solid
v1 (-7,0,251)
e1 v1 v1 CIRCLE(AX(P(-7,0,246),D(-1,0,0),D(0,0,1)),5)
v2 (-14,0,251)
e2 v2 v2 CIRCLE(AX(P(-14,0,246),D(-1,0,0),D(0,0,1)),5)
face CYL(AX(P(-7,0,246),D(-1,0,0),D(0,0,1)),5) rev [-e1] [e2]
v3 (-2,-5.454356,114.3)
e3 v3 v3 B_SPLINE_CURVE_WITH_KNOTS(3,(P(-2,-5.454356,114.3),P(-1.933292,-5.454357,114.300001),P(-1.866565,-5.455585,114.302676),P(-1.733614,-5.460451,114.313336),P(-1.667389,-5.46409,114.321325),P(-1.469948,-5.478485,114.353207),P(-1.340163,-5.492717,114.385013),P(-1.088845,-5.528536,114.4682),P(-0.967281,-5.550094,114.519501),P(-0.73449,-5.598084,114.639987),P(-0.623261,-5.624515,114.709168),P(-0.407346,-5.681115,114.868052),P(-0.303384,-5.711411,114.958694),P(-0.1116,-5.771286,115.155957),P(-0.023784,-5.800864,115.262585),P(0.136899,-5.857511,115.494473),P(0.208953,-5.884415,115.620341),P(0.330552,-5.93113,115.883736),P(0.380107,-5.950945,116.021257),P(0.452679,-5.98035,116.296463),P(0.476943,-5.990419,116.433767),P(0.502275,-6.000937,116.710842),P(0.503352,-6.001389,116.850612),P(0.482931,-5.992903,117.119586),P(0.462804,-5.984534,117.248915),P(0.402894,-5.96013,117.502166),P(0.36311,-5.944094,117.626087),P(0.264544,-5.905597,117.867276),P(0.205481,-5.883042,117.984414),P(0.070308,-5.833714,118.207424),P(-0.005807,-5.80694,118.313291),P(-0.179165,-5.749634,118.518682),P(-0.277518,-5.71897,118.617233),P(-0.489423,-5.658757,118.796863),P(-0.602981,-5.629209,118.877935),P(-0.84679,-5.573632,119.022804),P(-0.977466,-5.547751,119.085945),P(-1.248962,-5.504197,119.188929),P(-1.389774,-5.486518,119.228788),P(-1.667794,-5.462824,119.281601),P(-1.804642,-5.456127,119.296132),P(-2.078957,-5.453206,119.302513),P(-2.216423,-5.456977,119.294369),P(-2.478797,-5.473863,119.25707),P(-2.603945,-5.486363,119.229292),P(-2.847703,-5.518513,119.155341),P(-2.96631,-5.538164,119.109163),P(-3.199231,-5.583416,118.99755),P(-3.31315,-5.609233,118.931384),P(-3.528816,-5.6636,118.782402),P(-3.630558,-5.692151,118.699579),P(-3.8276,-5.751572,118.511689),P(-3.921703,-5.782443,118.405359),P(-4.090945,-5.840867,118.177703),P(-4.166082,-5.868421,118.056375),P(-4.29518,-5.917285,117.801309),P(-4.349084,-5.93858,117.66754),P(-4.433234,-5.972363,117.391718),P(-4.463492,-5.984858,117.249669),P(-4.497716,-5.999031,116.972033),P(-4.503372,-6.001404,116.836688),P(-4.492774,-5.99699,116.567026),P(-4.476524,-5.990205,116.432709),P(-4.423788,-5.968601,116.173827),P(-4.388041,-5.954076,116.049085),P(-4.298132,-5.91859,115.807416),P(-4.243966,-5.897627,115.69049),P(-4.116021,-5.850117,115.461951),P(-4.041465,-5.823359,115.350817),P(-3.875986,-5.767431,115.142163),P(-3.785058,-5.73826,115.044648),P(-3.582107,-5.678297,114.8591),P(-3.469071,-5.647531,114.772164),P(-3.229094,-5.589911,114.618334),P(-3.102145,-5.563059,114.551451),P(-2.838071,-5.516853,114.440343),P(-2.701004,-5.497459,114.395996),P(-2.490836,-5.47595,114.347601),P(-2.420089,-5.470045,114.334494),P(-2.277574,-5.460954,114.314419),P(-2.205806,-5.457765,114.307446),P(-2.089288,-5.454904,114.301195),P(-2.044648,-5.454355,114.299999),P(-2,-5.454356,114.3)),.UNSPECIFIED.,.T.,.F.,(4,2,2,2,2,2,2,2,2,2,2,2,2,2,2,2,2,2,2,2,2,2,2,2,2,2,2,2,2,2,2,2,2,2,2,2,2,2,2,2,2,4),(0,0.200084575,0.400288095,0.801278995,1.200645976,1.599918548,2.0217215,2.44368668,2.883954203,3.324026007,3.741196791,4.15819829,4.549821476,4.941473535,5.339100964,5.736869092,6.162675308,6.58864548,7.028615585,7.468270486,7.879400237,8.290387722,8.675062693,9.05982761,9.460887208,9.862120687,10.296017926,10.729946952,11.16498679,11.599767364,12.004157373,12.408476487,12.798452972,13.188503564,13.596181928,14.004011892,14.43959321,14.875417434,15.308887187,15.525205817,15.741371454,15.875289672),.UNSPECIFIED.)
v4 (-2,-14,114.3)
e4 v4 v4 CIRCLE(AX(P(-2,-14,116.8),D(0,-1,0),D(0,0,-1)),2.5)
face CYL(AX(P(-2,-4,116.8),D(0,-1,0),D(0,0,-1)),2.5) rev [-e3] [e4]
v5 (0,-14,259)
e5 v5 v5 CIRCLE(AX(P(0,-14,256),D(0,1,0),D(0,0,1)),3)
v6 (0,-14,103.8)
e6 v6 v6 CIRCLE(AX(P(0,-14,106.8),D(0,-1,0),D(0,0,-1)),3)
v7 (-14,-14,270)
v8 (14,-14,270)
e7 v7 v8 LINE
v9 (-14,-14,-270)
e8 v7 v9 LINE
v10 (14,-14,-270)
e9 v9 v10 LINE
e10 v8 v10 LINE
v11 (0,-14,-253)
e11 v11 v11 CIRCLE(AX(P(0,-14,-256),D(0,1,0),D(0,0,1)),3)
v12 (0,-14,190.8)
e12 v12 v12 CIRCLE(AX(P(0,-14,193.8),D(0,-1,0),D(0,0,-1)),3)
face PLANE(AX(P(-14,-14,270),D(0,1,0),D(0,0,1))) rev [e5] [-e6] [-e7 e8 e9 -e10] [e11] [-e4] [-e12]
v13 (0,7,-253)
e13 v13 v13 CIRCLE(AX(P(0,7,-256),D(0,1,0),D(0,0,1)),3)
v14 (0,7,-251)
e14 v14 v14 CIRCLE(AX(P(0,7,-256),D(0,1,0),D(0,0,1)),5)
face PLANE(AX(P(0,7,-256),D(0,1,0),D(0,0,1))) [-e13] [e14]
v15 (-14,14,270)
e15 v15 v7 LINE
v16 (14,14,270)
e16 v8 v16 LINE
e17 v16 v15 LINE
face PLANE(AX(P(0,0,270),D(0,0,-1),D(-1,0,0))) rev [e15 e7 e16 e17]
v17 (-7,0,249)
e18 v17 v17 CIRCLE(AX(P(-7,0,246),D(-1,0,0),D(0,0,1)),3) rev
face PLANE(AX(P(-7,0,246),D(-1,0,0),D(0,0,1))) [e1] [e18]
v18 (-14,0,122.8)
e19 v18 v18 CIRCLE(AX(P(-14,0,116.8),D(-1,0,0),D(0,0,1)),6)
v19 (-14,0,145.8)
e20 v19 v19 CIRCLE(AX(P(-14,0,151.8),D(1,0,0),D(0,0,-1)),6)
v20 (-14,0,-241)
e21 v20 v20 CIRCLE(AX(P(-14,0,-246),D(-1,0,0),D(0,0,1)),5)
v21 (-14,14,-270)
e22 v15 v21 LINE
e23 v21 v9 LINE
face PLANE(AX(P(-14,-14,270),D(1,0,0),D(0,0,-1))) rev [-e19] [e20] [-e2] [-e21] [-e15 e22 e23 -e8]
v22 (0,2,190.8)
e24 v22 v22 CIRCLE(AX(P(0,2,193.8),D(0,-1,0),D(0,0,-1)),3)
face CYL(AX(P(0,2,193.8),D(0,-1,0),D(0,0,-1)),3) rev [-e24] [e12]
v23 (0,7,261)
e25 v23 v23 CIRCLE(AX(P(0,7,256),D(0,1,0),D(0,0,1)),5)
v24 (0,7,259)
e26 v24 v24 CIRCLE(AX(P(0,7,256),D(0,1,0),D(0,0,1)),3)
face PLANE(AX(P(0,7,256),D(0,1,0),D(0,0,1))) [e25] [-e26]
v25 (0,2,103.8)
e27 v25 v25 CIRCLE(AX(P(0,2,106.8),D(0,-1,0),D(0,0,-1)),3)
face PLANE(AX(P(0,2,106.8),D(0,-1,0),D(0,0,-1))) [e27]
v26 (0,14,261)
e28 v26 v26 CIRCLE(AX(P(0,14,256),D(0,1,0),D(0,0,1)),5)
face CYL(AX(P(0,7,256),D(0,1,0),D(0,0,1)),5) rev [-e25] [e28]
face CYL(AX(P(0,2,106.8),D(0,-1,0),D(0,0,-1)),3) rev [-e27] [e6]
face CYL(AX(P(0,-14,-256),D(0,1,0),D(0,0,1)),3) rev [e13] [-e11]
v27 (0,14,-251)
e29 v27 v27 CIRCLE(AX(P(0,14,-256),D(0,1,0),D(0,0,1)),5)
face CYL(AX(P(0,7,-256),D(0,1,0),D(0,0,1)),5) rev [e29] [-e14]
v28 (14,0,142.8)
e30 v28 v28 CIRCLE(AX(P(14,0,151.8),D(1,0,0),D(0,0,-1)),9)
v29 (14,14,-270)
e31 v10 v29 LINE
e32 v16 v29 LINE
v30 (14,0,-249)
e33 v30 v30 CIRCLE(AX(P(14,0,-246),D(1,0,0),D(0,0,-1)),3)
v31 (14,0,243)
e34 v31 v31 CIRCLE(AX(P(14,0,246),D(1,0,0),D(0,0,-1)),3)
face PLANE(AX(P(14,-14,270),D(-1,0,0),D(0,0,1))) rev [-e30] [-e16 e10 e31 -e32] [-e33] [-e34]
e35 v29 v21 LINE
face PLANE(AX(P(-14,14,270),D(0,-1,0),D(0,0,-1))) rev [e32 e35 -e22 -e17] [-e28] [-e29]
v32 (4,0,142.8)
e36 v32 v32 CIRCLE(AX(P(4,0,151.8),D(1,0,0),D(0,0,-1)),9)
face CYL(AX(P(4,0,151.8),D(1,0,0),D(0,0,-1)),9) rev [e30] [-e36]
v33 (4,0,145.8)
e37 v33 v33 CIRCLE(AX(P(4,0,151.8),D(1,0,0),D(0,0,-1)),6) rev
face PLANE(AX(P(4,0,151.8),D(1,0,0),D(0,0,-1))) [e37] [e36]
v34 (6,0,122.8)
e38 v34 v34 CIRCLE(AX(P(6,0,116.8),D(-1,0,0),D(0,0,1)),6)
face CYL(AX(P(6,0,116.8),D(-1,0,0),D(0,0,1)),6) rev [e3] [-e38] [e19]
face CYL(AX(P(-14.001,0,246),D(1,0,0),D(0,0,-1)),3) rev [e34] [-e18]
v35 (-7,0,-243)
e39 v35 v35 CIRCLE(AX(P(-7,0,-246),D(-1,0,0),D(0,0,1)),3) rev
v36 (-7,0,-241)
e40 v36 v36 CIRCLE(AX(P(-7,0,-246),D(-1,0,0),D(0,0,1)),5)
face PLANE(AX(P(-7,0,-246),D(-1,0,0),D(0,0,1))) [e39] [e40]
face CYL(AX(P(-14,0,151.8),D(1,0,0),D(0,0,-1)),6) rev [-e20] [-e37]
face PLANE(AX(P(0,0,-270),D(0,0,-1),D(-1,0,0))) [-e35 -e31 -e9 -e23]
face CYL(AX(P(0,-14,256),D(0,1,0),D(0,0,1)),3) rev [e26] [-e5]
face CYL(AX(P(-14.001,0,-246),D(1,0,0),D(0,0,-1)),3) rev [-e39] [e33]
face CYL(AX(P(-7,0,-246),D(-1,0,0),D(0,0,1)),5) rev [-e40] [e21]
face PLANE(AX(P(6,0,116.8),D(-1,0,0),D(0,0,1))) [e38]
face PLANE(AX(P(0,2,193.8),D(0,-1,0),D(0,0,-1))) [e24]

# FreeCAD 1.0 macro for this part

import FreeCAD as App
import Part
import Sketcher
from FreeCAD import Vector
Q = App.Units.Quantity


def add_polygon(sketch, points):
    """Adds a closed chain of lines whose ends are joined by coincident constraints."""
    first, n = sketch.GeometryCount, len(points)
    for a, b in zip(points, points[1:] + points[:1]):
        sketch.addGeometry(Part.LineSegment(App.Vector(*a, 0), App.Vector(*b, 0)), False)
    for i in range(n):
        sketch.addConstraint(Sketcher.Constraint("Coincident", first + i, 2, first + (i + 1) % n, 1))

doc = App.newDocument("Part")
body = doc.addObject("PartDesign::Body", "Body")

sketch1 = doc.addObject("Sketcher::SketchObject", "Sketch")
body.addObject(sketch1)
sketch1.AttachmentSupport = (doc.XY_Plane, [""])
sketch1.MapMode = "FlatFace"
add_polygon(sketch1, [(-14, 14), (-14, -14), (14, -14), (14, 14)])
sketch1.addConstraint([
    Sketcher.Constraint("Vertical", 0),
    Sketcher.Constraint("Horizontal", 1),
    Sketcher.Constraint("Vertical", 2),
    Sketcher.Constraint("Horizontal", 3),
    Sketcher.Constraint("Symmetric", 0, 2, 2, 2, -1, 1),
    Sketcher.Constraint("Equal", 3, 0),
    Sketcher.Constraint("DistanceX", 1, 1, 1, 2, Q("28 mm")),
])
pad1 = doc.addObject("PartDesign::Pad", "Pad")
body.addObject(pad1)
pad1.Profile = sketch1
pad1.Length = 540
pad1.Midplane = True

sketch2 = doc.addObject("Sketcher::SketchObject", "Sketch001")
body.addObject(sketch2)
sketch2.AttachmentSupport = (doc.XZ_Plane, [""])
sketch2.MapMode = "FlatFace"
sketch2.AttachmentOffset = App.Placement(Vector(0, 0, -14), App.Rotation())
sketch2.addGeometry([
    Part.Circle(Vector(0, -256, 0), Vector(0, 0, 1), 5),
    Part.Circle(Vector(0, 256, 0), Vector(0, 0, 1), 5),
], False)
sketch2.addConstraint([
    Sketcher.Constraint("Equal", 0, 1),
    Sketcher.Constraint("Symmetric", 0, 3, 1, 3, -1, 1),
    Sketcher.Constraint("PointOnObject", 0, 3, -2),
    Sketcher.Constraint("Diameter", 0, Q("10 mm")),
    Sketcher.Constraint("DistanceY", 0, 3, -1, 1, Q("256 mm")),
])
pocket1 = doc.addObject("PartDesign::Pocket", "Pocket")
body.addObject(pocket1)
pocket1.Profile = sketch2
pocket1.Length = 7
pocket1.Reversed = True

sketch3 = doc.addObject("Sketcher::SketchObject", "Sketch002")
body.addObject(sketch3)
sketch3.AttachmentSupport = (doc.XZ_Plane, [""])
sketch3.MapMode = "FlatFace"
sketch3.AttachmentOffset = App.Placement(Vector(0, 0, -14), App.Rotation())
sketch3.addGeometry([
    Part.Circle(Vector(0, 256, 0), Vector(0, 0, 1), 3),
    Part.Circle(Vector(0, -256, 0), Vector(0, 0, 1), 3),
], False)
sketch3.addConstraint([
    Sketcher.Constraint("Equal", 0, 1),
    Sketcher.Constraint("Symmetric", 0, 3, 1, 3, -1, 1),
    Sketcher.Constraint("PointOnObject", 0, 3, -2),
    Sketcher.Constraint("Diameter", 0, Q("6 mm")),
    Sketcher.Constraint("DistanceY", -1, 1, 0, 3, Q("256 mm")),
])
pocket2 = doc.addObject("PartDesign::Pocket", "Pocket001")
body.addObject(pocket2)
pocket2.Profile = sketch3
pocket2.Type = "ThroughAll"
pocket2.Reversed = True

sketch4 = doc.addObject("Sketcher::SketchObject", "Sketch003")
body.addObject(sketch4)
sketch4.AttachmentSupport = (doc.YZ_Plane, [""])
sketch4.MapMode = "FlatFace"
sketch4.AttachmentOffset = App.Placement(Vector(0, 0, 14), App.Rotation())
sketch4.addGeometry(Part.Circle(Vector(0, 152, 0), Vector(0, 0, 1), 6), False)
sketch4.addConstraint([
    Sketcher.Constraint("PointOnObject", 0, 3, -2),
    Sketcher.Constraint("Diameter", 0, Q("12 mm")),
    Sketcher.Constraint("DistanceY", -1, 1, 0, 3, Q("151.8 mm")),
])
pocket3 = doc.addObject("PartDesign::Pocket", "Pocket002")
body.addObject(pocket3)
pocket3.Profile = sketch4
pocket3.Type = "ThroughAll"

sketch5 = doc.addObject("Sketcher::SketchObject", "Sketch004")
body.addObject(sketch5)
sketch5.AttachmentSupport = (doc.YZ_Plane, [""])
sketch5.MapMode = "FlatFace"
sketch5.AttachmentOffset = App.Placement(Vector(0, 0, 14), App.Rotation())
sketch5.addGeometry(Part.Circle(Vector(0, 152, 0), Vector(0, 0, 1), 9), False)
sketch5.addConstraint([
    Sketcher.Constraint("PointOnObject", 0, 3, -2),
    Sketcher.Constraint("Diameter", 0, Q("18 mm")),
    Sketcher.Constraint("DistanceY", -1, 1, 0, 3, Q("151.8 mm")),
])
pocket4 = doc.addObject("PartDesign::Pocket", "Pocket003")
body.addObject(pocket4)
pocket4.Profile = sketch5
pocket4.Length = 10

sketch6 = doc.addObject("Sketcher::SketchObject", "Sketch005")
body.addObject(sketch6)
sketch6.AttachmentSupport = (doc.YZ_Plane, [""])
sketch6.MapMode = "FlatFace"
sketch6.AttachmentOffset = App.Placement(Vector(0, 0, 14), App.Rotation())
sketch6.addGeometry(Part.Circle(Vector(0, -246, 0), Vector(0, 0, 1), 3), False)
sketch6.addConstraint([
    Sketcher.Constraint("PointOnObject", 0, 3, -2),
    Sketcher.Constraint("Diameter", 0, Q("6 mm")),
    Sketcher.Constraint("DistanceY", 0, 3, -1, 1, Q("246 mm")),
])
pocket5 = doc.addObject("PartDesign::Pocket", "Pocket004")
body.addObject(pocket5)
pocket5.Profile = sketch6
pocket5.Type = "UpToFirst"

sketch7 = doc.addObject("Sketcher::SketchObject", "Sketch006")
body.addObject(sketch7)
sketch7.AttachmentSupport = (doc.YZ_Plane, [""])
sketch7.MapMode = "FlatFace"
sketch7.AttachmentOffset = App.Placement(Vector(0, 0, 14), App.Rotation())
sketch7.addGeometry(Part.Circle(Vector(0, 246, 0), Vector(0, 0, 1), 3), False)
sketch7.addConstraint([
    Sketcher.Constraint("PointOnObject", 0, 3, -2),
    Sketcher.Constraint("Diameter", 0, Q("6 mm")),
    Sketcher.Constraint("DistanceY", -1, 1, 0, 3, Q("246 mm")),
])
pocket6 = doc.addObject("PartDesign::Pocket", "Pocket005")
body.addObject(pocket6)
pocket6.Profile = sketch7
pocket6.Type = "UpToFirst"

sketch8 = doc.addObject("Sketcher::SketchObject", "Sketch007")
body.addObject(sketch8)
sketch8.AttachmentSupport = (doc.YZ_Plane, [""])
sketch8.MapMode = "FlatFace"
sketch8.AttachmentOffset = App.Placement(Vector(0, 0, -14), App.Rotation())
sketch8.addGeometry([
    Part.Circle(Vector(0, 246, 0), Vector(0, 0, 1), 5),
    Part.Circle(Vector(0, -246, 0), Vector(0, 0, 1), 5),
], False)
sketch8.addConstraint([
    Sketcher.Constraint("Equal", 0, 1),
    Sketcher.Constraint("Symmetric", 0, 3, 1, 3, -1, 1),
    Sketcher.Constraint("PointOnObject", 0, 3, -2),
    Sketcher.Constraint("Diameter", 0, Q("10 mm")),
    Sketcher.Constraint("DistanceY", -1, 1, 0, 3, Q("246 mm")),
])
pocket7 = doc.addObject("PartDesign::Pocket", "Pocket006")
body.addObject(pocket7)
pocket7.Profile = sketch8
pocket7.Length = 7
pocket7.Reversed = True

sketch9 = doc.addObject("Sketcher::SketchObject", "Sketch008")
body.addObject(sketch9)
sketch9.AttachmentSupport = (doc.XZ_Plane, [""])
sketch9.MapMode = "FlatFace"
sketch9.AttachmentOffset = App.Placement(Vector(0, 0, 14), App.Rotation())
sketch9.addGeometry([
    Part.Circle(Vector(0, 193.8, 0), Vector(0, 0, 1), 3),
    Part.Circle(Vector(0, 106.8, 0), Vector(0, 0, 1), 3),
], False)
sketch9.addConstraint([
    Sketcher.Constraint("Equal", 0, 1),
    Sketcher.Constraint("PointOnObject", 0, 3, -2),
    Sketcher.Constraint("PointOnObject", 1, 3, -2),
    Sketcher.Constraint("Diameter", 0, Q("6 mm")),
    Sketcher.Constraint("DistanceY", 1, 3, 0, 3, Q("87 mm")),
    Sketcher.Constraint("DistanceY", -1, 1, 0, 3, Q("193.8 mm")),
])
pocket8 = doc.addObject("PartDesign::Pocket", "Pocket007")
body.addObject(pocket8)
pocket8.Profile = sketch9
pocket8.Length = 16

sketch10 = doc.addObject("Sketcher::SketchObject", "Sketch009")
body.addObject(sketch10)
sketch10.AttachmentSupport = (doc.YZ_Plane, [""])
sketch10.MapMode = "FlatFace"
sketch10.AttachmentOffset = App.Placement(Vector(0, 0, -14), App.Rotation())
sketch10.addGeometry(Part.Circle(Vector(0, 117, 0), Vector(0, 0, 1), 6), False)
sketch10.addConstraint([
    Sketcher.Constraint("PointOnObject", 0, 3, -2),
    Sketcher.Constraint("Diameter", 0, Q("12 mm")),
    Sketcher.Constraint("DistanceY", -1, 1, 0, 3, Q("116.8 mm")),
])
pocket9 = doc.addObject("PartDesign::Pocket", "Pocket008")
body.addObject(pocket9)
pocket9.Profile = sketch10
pocket9.Length = 20
pocket9.Reversed = True

sketch11 = doc.addObject("Sketcher::SketchObject", "Sketch010")
body.addObject(sketch11)
sketch11.AttachmentSupport = (doc.XZ_Plane, [""])
sketch11.MapMode = "FlatFace"
sketch11.AttachmentOffset = App.Placement(Vector(0, 0, 14), App.Rotation())
sketch11.addGeometry(Part.Circle(Vector(-2, 116.8, 0), Vector(0, 0, 1), 2.5), False)
sketch11.addConstraint([
    Sketcher.Constraint("Diameter", 0, Q("5 mm")),
    Sketcher.Constraint("DistanceX", 0, 3, -1, 1, Q("2 mm")),
    Sketcher.Constraint("DistanceY", -1, 1, 0, 3, Q("116.8 mm")),
])
pocket10 = doc.addObject("PartDesign::Pocket", "Pocket009")
body.addObject(pocket10)
pocket10.Profile = sketch11
pocket10.Length = 10

doc.recompute()
